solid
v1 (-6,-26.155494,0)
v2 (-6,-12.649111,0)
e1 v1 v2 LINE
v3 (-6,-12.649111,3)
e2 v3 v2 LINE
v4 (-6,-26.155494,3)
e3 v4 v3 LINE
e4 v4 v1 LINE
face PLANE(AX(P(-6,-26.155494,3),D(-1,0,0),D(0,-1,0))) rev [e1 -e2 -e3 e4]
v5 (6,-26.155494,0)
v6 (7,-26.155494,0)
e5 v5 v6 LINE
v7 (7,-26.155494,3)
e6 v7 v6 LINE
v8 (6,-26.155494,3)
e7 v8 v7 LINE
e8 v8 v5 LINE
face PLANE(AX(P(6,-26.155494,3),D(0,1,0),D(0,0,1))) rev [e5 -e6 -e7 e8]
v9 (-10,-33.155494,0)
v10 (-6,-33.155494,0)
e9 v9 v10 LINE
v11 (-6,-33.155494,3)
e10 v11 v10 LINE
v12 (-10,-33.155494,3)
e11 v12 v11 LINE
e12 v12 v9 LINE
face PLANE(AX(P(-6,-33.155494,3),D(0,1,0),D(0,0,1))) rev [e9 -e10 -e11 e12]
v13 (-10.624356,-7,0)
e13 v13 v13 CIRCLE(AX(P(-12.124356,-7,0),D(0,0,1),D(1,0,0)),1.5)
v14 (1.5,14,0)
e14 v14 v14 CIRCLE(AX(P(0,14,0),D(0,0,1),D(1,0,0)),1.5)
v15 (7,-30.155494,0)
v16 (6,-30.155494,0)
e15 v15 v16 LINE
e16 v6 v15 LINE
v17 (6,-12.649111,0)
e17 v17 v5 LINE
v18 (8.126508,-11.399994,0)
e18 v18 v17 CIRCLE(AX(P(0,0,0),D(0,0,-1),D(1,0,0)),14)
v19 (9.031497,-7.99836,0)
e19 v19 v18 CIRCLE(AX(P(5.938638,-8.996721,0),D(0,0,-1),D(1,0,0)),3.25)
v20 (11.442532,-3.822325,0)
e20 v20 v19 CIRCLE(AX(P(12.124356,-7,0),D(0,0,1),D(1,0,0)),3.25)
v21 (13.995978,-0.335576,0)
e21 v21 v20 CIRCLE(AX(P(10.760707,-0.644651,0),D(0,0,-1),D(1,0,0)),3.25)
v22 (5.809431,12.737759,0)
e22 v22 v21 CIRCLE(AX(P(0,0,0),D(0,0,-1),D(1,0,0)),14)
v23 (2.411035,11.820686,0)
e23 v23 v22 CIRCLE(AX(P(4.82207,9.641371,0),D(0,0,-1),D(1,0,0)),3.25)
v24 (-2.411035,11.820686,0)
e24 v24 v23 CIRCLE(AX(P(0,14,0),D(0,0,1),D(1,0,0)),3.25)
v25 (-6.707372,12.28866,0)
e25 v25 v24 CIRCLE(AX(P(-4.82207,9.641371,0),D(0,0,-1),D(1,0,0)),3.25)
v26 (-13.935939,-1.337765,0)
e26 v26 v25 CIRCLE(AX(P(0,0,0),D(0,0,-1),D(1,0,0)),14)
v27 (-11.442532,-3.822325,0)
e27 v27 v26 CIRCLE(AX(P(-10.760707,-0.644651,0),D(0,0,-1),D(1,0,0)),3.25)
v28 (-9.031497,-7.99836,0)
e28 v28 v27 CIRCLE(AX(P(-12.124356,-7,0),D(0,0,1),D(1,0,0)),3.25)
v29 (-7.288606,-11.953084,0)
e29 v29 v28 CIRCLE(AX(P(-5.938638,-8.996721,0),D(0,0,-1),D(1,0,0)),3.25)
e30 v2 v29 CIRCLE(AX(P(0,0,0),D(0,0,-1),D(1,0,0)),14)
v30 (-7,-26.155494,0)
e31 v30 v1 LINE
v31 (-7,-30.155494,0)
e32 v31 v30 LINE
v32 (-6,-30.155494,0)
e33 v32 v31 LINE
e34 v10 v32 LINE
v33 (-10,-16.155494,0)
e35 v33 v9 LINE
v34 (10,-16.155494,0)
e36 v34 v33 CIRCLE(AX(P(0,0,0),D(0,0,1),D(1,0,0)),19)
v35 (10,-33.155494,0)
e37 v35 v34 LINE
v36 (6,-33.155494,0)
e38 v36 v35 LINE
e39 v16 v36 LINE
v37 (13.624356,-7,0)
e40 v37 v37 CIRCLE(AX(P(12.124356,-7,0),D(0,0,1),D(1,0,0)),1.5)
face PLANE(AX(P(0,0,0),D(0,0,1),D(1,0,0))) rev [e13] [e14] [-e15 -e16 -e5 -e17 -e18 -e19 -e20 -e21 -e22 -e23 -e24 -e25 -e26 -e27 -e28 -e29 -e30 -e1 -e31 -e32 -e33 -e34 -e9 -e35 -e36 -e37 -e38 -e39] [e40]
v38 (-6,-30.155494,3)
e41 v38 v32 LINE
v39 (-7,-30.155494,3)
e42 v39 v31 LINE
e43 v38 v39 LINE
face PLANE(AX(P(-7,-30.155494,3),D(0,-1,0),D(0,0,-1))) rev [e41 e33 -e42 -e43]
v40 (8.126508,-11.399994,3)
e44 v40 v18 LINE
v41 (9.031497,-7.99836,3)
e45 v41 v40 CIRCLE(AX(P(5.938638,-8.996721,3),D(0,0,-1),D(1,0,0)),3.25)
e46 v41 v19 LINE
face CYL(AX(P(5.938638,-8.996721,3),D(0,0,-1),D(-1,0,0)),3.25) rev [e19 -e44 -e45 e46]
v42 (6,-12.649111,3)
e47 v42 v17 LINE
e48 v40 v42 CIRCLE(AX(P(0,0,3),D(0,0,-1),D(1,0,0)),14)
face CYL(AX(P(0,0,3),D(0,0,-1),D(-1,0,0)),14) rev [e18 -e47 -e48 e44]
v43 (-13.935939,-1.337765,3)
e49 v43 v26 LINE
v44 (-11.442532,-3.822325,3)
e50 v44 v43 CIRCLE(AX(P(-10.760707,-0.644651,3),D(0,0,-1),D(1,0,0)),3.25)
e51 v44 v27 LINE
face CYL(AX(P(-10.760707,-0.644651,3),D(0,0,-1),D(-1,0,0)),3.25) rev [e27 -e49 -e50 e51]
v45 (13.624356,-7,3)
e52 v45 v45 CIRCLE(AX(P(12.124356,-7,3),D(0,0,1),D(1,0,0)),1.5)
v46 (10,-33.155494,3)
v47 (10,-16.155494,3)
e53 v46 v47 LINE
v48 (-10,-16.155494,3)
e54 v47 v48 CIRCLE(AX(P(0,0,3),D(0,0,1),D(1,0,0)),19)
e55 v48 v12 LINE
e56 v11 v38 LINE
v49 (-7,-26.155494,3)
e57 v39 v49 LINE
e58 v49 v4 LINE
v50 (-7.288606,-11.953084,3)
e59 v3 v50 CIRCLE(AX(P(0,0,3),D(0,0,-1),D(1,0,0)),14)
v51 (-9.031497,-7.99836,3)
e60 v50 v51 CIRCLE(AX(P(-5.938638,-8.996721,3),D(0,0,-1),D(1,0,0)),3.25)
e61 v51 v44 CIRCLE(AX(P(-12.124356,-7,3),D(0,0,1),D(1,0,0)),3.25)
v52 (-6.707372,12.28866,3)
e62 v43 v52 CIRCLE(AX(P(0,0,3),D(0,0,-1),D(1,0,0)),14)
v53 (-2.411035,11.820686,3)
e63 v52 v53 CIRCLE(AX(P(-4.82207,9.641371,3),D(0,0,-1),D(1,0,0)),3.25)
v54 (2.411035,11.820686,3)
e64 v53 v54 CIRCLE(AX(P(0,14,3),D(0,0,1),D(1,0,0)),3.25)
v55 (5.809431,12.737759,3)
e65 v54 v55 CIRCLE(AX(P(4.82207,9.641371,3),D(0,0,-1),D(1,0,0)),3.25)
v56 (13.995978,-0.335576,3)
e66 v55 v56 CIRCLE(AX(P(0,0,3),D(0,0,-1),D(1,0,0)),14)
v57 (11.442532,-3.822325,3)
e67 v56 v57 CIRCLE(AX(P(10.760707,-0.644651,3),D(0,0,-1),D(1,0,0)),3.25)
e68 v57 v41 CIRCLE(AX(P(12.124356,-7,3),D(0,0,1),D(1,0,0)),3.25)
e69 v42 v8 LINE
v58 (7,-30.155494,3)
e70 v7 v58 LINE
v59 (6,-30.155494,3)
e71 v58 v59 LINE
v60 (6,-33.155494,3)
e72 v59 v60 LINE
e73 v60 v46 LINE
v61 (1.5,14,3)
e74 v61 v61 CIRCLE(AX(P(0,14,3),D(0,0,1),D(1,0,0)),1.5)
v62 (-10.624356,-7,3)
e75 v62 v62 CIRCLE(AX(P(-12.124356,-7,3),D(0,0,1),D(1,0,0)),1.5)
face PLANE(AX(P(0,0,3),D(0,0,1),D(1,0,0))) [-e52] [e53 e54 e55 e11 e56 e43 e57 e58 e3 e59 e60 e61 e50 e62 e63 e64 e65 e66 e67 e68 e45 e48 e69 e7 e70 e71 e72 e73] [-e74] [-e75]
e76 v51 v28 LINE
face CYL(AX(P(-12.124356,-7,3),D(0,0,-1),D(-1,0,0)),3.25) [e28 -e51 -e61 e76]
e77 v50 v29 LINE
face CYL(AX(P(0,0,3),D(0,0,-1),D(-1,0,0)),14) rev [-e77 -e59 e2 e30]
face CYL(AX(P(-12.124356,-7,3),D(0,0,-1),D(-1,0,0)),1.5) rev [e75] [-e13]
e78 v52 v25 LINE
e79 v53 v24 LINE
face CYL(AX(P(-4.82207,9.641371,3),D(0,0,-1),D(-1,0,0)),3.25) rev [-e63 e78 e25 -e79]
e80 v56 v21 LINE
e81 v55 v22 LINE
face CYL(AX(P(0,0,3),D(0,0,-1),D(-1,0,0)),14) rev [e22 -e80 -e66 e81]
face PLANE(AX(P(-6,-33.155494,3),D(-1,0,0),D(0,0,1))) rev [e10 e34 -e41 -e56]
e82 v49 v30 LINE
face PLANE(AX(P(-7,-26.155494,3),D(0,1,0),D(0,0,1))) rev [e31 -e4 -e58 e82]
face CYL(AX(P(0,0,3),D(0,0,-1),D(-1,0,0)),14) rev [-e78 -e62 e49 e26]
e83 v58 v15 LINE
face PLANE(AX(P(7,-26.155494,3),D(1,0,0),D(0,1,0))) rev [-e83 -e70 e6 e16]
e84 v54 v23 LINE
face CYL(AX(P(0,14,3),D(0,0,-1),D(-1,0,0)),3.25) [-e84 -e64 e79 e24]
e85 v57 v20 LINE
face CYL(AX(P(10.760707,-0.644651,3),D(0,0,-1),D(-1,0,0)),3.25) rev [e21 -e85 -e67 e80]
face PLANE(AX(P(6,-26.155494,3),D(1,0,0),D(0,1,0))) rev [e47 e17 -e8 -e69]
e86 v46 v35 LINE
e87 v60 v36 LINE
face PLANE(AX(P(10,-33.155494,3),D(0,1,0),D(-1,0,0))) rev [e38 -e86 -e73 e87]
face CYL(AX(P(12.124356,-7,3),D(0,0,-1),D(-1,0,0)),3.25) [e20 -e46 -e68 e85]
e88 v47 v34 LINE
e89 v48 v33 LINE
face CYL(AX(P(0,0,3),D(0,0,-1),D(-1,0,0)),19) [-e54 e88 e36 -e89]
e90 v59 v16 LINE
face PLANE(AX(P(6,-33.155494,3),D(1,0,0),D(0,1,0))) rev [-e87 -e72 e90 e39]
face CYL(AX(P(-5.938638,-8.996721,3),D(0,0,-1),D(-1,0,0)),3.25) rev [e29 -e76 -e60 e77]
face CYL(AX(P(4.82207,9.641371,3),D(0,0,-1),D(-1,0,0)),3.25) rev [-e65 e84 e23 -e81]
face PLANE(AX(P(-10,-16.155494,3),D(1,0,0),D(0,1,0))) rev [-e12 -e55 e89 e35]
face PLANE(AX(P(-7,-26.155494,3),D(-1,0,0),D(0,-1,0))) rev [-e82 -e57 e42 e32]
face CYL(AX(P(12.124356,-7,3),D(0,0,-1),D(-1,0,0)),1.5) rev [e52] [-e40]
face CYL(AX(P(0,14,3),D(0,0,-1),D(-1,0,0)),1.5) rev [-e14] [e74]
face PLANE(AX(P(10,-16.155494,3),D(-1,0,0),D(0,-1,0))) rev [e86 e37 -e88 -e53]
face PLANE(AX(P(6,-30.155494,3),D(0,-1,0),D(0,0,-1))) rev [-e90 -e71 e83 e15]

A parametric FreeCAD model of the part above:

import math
import FreeCAD as App
import Part
import Sketcher
from FreeCAD import Vector
Q = App.Units.Quantity

doc = App.newDocument("Part")
params = doc.addObject("Spreadsheet::Sheet", "Params")
for row, (alias, value) in enumerate([
    ("sketch1_diameter", "3 mm"),
    ("sketch1_radius", "14 mm"),
    ("sketch1_radius2", "19 mm"),
    ("sketch1_width", "1 mm"),
    ("sketch1_width2", "4 mm"),
    ("pad1_length", "3 mm"),
], start=1):
    params.set(f"A{row}", alias)
    params.set(f"B{row}", "=" + value)
    params.setAlias(f"B{row}", alias)

body = doc.addObject("PartDesign::Body", "Body")

sketch1 = body.newObject("Sketcher::SketchObject", "Sketch")
sketch1.AttachmentSupport = (doc.getObject("XY_Plane"), [""])
sketch1.MapMode = "FlatFace"
sketch1.addGeometry([
    Part.LineSegment(Vector(-6, -33.155494, 0), Vector(-6, -30.155494, 0)),
    Part.LineSegment(Vector(-6, -30.155494, 0), Vector(-7, -30.155494, 0)),
    Part.LineSegment(Vector(-7, -30.155494, 0), Vector(-7, -26.155494, 0)),
    Part.LineSegment(Vector(-7, -26.155494, 0), Vector(-6, -26.155494, 0)),
    Part.LineSegment(Vector(-6, -26.155494, 0), Vector(-6, -12.649111, 0)),
    Part.ArcOfCircle(Part.Circle(Vector(0, 0, 0), Vector(0, 0, 1), 14), math.radians(-121.373495), math.radians(-115.376933)),
    Part.ArcOfCircle(Part.Circle(Vector(-5.938638, -8.996721, 0), Vector(0, 0, 1), 3.25), math.radians(162.110165), math.radians(245.457073)),
    Part.ArcOfCircle(Part.Circle(Vector(-12.124356, -7, 0), Vector(0, 0, 1), 3.25), math.radians(-17.889835), math.radians(77.889835)),
    Part.ArcOfCircle(Part.Circle(Vector(-10.760707, -0.644651, 0), Vector(0, 0, 1), 3.25), math.radians(-167.686189), math.radians(-102.110165)),
    Part.ArcOfCircle(Part.Circle(Vector(0, 0, 0), Vector(0, 0, 1), 14), math.radians(118.626505), math.radians(185.483243)),
    Part.ArcOfCircle(Part.Circle(Vector(-4.82207, 9.641371, 0), Vector(0, 0, 1), 3.25), math.radians(42.110165), math.radians(125.457073)),
    Part.ArcOfCircle(Part.Circle(Vector(0, 14, 0), Vector(0, 0, 1), 3.25), math.radians(-137.889835), math.radians(-42.110165)),
    Part.ArcOfCircle(Part.Circle(Vector(4.82207, 9.641371, 0), Vector(0, 0, 1), 3.25), math.radians(72.313811), math.radians(137.889835)),
    Part.ArcOfCircle(Part.Circle(Vector(0, 0, 0), Vector(0, 0, 1), 14), math.radians(-1.373495), math.radians(65.483244)),
    Part.ArcOfCircle(Part.Circle(Vector(10.760707, -0.644651, 0), Vector(0, 0, 1), 3.25), math.radians(-77.889835), math.radians(5.457073)),
    Part.ArcOfCircle(Part.Circle(Vector(12.124356, -7, 0), Vector(0, 0, 1), 3.25), math.radians(102.110165), math.radians(197.889835)),
    Part.ArcOfCircle(Part.Circle(Vector(5.938638, -8.996721, 0), Vector(0, 0, 1), 3.25), math.radians(-47.686189), math.radians(17.889835)),
    Part.ArcOfCircle(Part.Circle(Vector(0, 0, 0), Vector(0, 0, 1), 14), math.radians(-64.623066), math.radians(-54.516757)),
    Part.LineSegment(Vector(6, -12.649111, 0), Vector(6, -26.155494, 0)),
    Part.LineSegment(Vector(6, -26.155494, 0), Vector(7, -26.155494, 0)),
    Part.LineSegment(Vector(7, -26.155494, 0), Vector(7, -30.155494, 0)),
    Part.LineSegment(Vector(7, -30.155494, 0), Vector(6, -30.155494, 0)),
    Part.LineSegment(Vector(6, -30.155494, 0), Vector(6, -33.155494, 0)),
    Part.LineSegment(Vector(6, -33.155494, 0), Vector(10, -33.155494, 0)),
    Part.LineSegment(Vector(10, -33.155494, 0), Vector(10, -16.155494, 0)),
    Part.ArcOfCircle(Part.Circle(Vector(0, 0, 0), Vector(0, 0, 1), 19), math.radians(-58.243136), math.radians(238.243136)),
    Part.LineSegment(Vector(-10, -16.155494, 0), Vector(-10, -33.155494, 0)),
    Part.LineSegment(Vector(-10, -33.155494, 0), Vector(-6, -33.155494, 0)),
    Part.Circle(Vector(-12.124356, -7, 0), Vector(0, 0, 1), 1.5),
    Part.Circle(Vector(12.124356, -7, 0), Vector(0, 0, 1), 1.5),
    Part.Circle(Vector(0, 14, 0), Vector(0, 0, 1), 1.5),
], False)
sketch1.addConstraint([
    Sketcher.Constraint("Coincident", 0, 2, 1, 1),
    Sketcher.Constraint("Coincident", 1, 2, 2, 1),
    Sketcher.Constraint("Coincident", 2, 2, 3, 1),
    Sketcher.Constraint("Coincident", 3, 2, 4, 1),
    Sketcher.Constraint("Coincident", 4, 2, 5, 2),
    Sketcher.Constraint("Coincident", 5, 1, 6, 2),
    Sketcher.Constraint("Tangent", 6, 1, 7, 1),
    Sketcher.Constraint("Tangent", 7, 2, 8, 2),
    Sketcher.Constraint("Coincident", 8, 1, 9, 2),
    Sketcher.Constraint("Coincident", 9, 1, 10, 2),
    Sketcher.Constraint("Tangent", 10, 1, 11, 1),
    Sketcher.Constraint("Tangent", 11, 2, 12, 2),
    Sketcher.Constraint("Coincident", 12, 1, 13, 2),
    Sketcher.Constraint("Coincident", 13, 1, 14, 2),
    Sketcher.Constraint("Tangent", 14, 1, 15, 1),
    Sketcher.Constraint("Tangent", 15, 2, 16, 2),
    Sketcher.Constraint("Coincident", 16, 1, 17, 2),
    Sketcher.Constraint("Coincident", 17, 1, 18, 1),
    Sketcher.Constraint("Coincident", 18, 2, 19, 1),
    Sketcher.Constraint("Coincident", 19, 2, 20, 1),
    Sketcher.Constraint("Coincident", 20, 2, 21, 1),
    Sketcher.Constraint("Coincident", 21, 2, 22, 1),
    Sketcher.Constraint("Coincident", 22, 2, 23, 1),
    Sketcher.Constraint("Coincident", 23, 2, 24, 1),
    Sketcher.Constraint("Coincident", 24, 2, 25, 1),
    Sketcher.Constraint("Coincident", 25, 2, 26, 1),
    Sketcher.Constraint("Coincident", 26, 2, 27, 1),
    Sketcher.Constraint("Coincident", 27, 2, 0, 1),
    Sketcher.Constraint("Vertical", 0),
    Sketcher.Constraint("Horizontal", 1),
    Sketcher.Constraint("Vertical", 2),
    Sketcher.Constraint("Horizontal", 3),
    Sketcher.Constraint("Vertical", 4),
    Sketcher.Constraint("Vertical", 18),
    Sketcher.Constraint("Horizontal", 19),
    Sketcher.Constraint("Vertical", 20),
    Sketcher.Constraint("Horizontal", 21),
    Sketcher.Constraint("Vertical", 22),
    Sketcher.Constraint("Horizontal", 23),
    Sketcher.Constraint("Vertical", 24),
    Sketcher.Constraint("Vertical", 26),
    Sketcher.Constraint("Horizontal", 27),
    Sketcher.Constraint("Coincident", 5, 3, -1, 1),
    Sketcher.Constraint("Coincident", 9, 3, -1, 1),
    Sketcher.Constraint("Coincident", 13, 3, -1, 1),
    Sketcher.Constraint("Coincident", 17, 3, -1, 1),
    Sketcher.Constraint("Coincident", 25, 3, -1, 1),
    Sketcher.Constraint("Coincident", 28, 3, 7, 3),
    Sketcher.Constraint("Coincident", 29, 3, 15, 3),
    Sketcher.Constraint("Coincident", 30, 3, 11, 3),
    Sketcher.Constraint("Equal", 6, 7),
    Sketcher.Constraint("Equal", 7, 8),
    Sketcher.Constraint("Equal", 5, 9),
    Sketcher.Constraint("Equal", 8, 10),
    Sketcher.Constraint("Equal", 10, 11),
    Sketcher.Constraint("Equal", 11, 12),
    Sketcher.Constraint("Equal", 9, 13),
    Sketcher.Constraint("Equal", 12, 14),
    Sketcher.Constraint("Equal", 14, 15),
    Sketcher.Constraint("Equal", 15, 16),
    Sketcher.Constraint("Equal", 13, 17),
    Sketcher.Constraint("Equal", 28, 29),
    Sketcher.Constraint("Equal", 29, 30),
    Sketcher.Constraint("Symmetric", 10, 3, 12, 3, -2),
    Sketcher.Constraint("Symmetric", 8, 3, 14, 3, -2),
    Sketcher.Constraint("Symmetric", 6, 3, 16, 3, -2),
    Sketcher.Constraint("Symmetric", 3, 2, 18, 2, -2),
    Sketcher.Constraint("Symmetric", 1, 2, 20, 2, -2),
    Sketcher.Constraint("Symmetric", 23, 2, 26, 2, -2),
    Sketcher.Constraint("Vertical", 0, 2, 3, 2),
    Sketcher.Constraint("Vertical", 18, 2, 21, 2),
    Sketcher.Constraint("Equal", 27, 2),
    Sketcher.Constraint("Diameter", 28, Q("3 mm")),
    Sketcher.Constraint("Radius", 5, Q("14 mm")),
    Sketcher.Constraint("Radius", 25, Q("19 mm")),
    Sketcher.Constraint("DistanceX", 1, 2, 1, 1, Q("1 mm")),
    Sketcher.Constraint("DistanceX", 23, 1, 23, 2, Q("4 mm")),
    Sketcher.Constraint("DistanceY", 0, 1, 0, 2, Q("3 mm")),
    Sketcher.Constraint("DistanceY", 24, 1, 24, 2, Q("17 mm")),
    Sketcher.Constraint("Radius", 6, Q("3.25 mm")),
    Sketcher.Constraint("DistanceY", 7, 3, -1, 1, Q("7 mm")),
    Sketcher.Constraint("DistanceY", -1, 1, 11, 3, Q("14 mm")),
    Sketcher.Constraint("DistanceX", 0, 2, -1, 1, Q("6 mm")),
    Sketcher.Constraint("DistanceX", 8, 3, 5, 1, Q("3.472101 mm")),
    Sketcher.Constraint("DistanceX", 9, 1, 10, 3, Q("1.885302 mm")),
    Sketcher.Constraint("DistanceY", 24, 2, 16, 1, Q("4.7555 mm")),
    Sketcher.Constraint("DistanceY", 6, 3, -1, 1, Q("8.996721 mm")),
])
sketch1.setExpression("Constraints[72]", "Params.sketch1_diameter")
sketch1.setExpression("Constraints[73]", "Params.sketch1_radius")
sketch1.setExpression("Constraints[74]", "Params.sketch1_radius2")
sketch1.setExpression("Constraints[75]", "Params.sketch1_width")
sketch1.setExpression("Constraints[76]", "Params.sketch1_width2")
pad1 = body.newObject("PartDesign::Pad", "Pad")
pad1.Profile = sketch1
pad1.setExpression("Length", "Params.pad1_length")

doc.recompute()
